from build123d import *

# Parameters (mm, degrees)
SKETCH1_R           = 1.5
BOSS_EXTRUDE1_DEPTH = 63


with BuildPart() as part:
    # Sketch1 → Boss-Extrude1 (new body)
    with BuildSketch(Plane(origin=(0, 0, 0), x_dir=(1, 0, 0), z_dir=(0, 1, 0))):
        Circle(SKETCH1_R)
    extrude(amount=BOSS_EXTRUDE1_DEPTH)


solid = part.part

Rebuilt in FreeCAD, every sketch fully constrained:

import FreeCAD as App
import Part
import Sketcher
from FreeCAD import Vector

doc = App.newDocument("Part")
body = doc.addObject("PartDesign::Body", "Body")

# Sketch on XZ plane
sketch1 = body.newObject("Sketcher::SketchObject", "Sketch")
sketch1.AttachmentSupport = (doc.getObject("XZ_Plane"), [""])
sketch1.MapMode = "FlatFace"
sketch1.addGeometry(Part.Circle(Vector(0, 0, 0), Vector(0, 0, 1), 1.5), False)
sketch1.addConstraint(Sketcher.Constraint("Coincident", 0, 3, -1, 1))
sketch1.addConstraint(Sketcher.Constraint("Diameter", 0, 3.0))
pad1 = body.newObject("PartDesign::Pad", "Pad")
pad1.Profile = sketch1
pad1.Length = 63
pad1.Reversed = True

doc.recompute()
